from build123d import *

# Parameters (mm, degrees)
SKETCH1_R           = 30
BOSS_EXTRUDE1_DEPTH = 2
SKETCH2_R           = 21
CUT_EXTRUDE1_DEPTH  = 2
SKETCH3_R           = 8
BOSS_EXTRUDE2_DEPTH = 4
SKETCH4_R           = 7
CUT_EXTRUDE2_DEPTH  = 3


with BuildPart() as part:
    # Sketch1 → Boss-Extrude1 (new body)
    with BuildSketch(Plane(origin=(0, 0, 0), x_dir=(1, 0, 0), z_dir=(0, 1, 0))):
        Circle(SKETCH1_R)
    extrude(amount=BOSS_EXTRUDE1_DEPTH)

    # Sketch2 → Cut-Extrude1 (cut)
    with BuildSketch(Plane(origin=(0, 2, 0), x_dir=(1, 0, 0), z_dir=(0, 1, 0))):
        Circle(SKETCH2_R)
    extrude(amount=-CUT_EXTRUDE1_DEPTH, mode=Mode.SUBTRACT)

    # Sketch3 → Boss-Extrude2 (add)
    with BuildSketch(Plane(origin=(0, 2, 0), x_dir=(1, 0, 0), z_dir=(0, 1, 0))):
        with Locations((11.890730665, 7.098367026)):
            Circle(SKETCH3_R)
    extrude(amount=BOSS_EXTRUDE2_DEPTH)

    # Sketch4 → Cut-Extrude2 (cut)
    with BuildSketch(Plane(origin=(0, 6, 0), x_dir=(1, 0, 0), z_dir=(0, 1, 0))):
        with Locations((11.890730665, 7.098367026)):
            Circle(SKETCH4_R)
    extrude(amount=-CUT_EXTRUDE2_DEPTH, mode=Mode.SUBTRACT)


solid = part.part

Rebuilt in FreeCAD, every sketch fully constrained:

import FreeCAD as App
import Part
import Sketcher

V = App.Vector
Q = App.Units.Quantity

doc = App.newDocument("Part")
body = doc.addObject("PartDesign::Body", "Body")

sketch1 = doc.addObject("Sketcher::SketchObject", "Sketch")
body.addObject(sketch1)
sketch1.AttachmentSupport = (doc.XZ_Plane, [""])
sketch1.MapMode = "FlatFace"
sketch1.addGeometry(Part.Circle(V(0, 0, 0), V(0, 0, 1), 30), False)
sketch1.addConstraint(Sketcher.Constraint("Coincident", 0, 3, -1, 1))
sketch1.addConstraint(Sketcher.Constraint("Diameter", 0, Q("60 mm")))
pad1 = doc.addObject("PartDesign::Pad", "Pad")
body.addObject(pad1)
pad1.Profile = sketch1
pad1.Length = 2
pad1.Reversed = True

sketch2 = doc.addObject("Sketcher::SketchObject", "Sketch001")
body.addObject(sketch2)
sketch2.AttachmentSupport = (doc.XZ_Plane, [""])
sketch2.MapMode = "FlatFace"
sketch2.AttachmentOffset = App.Placement(V(0, 0, -2), App.Rotation())
sketch2.addGeometry(Part.Circle(V(0, 0, 0), V(0, 0, 1), 21), False)
sketch2.addConstraint(Sketcher.Constraint("Coincident", 0, 3, -1, 1))
sketch2.addConstraint(Sketcher.Constraint("Diameter", 0, Q("42 mm")))
pocket1 = doc.addObject("PartDesign::Pocket", "Pocket")
body.addObject(pocket1)
pocket1.Profile = sketch2
pocket1.Length = 2
pocket1.Reversed = True

sketch3 = doc.addObject("Sketcher::SketchObject", "Sketch002")
body.addObject(sketch3)
sketch3.AttachmentSupport = (doc.XZ_Plane, [""])
sketch3.MapMode = "FlatFace"
sketch3.AttachmentOffset = App.Placement(V(0, 0, -2), App.Rotation())
sketch3.addGeometry(Part.Circle(V(12, -7, 0), V(0, 0, 1), 8), False)
sketch3.addConstraint(Sketcher.Constraint("Diameter", 0, Q("16 mm")))
sketch3.addConstraint(Sketcher.Constraint("DistanceX", -1, 1, 0, 3, Q("11.890731 mm")))
sketch3.addConstraint(Sketcher.Constraint("DistanceY", 0, 3, -1, 1, Q("7.098367 mm")))
pad2 = doc.addObject("PartDesign::Pad", "Pad001")
body.addObject(pad2)
pad2.Profile = sketch3
pad2.Length = 4
pad2.Reversed = True

sketch4 = doc.addObject("Sketcher::SketchObject", "Sketch003")
body.addObject(sketch4)
sketch4.AttachmentSupport = (doc.XZ_Plane, [""])
sketch4.MapMode = "FlatFace"
sketch4.AttachmentOffset = App.Placement(V(0, 0, -6), App.Rotation())
sketch4.addGeometry(Part.Circle(V(12, -7, 0), V(0, 0, 1), 7), False)
sketch4.addConstraint(Sketcher.Constraint("Diameter", 0, Q("14 mm")))
sketch4.addConstraint(Sketcher.Constraint("DistanceX", -1, 1, 0, 3, Q("11.890731 mm")))
sketch4.addConstraint(Sketcher.Constraint("DistanceY", 0, 3, -1, 1, Q("7.098367 mm")))
pocket2 = doc.addObject("PartDesign::Pocket", "Pocket001")
body.addObject(pocket2)
pocket2.Profile = sketch4
pocket2.Length = 3
pocket2.Reversed = True

doc.recompute()
